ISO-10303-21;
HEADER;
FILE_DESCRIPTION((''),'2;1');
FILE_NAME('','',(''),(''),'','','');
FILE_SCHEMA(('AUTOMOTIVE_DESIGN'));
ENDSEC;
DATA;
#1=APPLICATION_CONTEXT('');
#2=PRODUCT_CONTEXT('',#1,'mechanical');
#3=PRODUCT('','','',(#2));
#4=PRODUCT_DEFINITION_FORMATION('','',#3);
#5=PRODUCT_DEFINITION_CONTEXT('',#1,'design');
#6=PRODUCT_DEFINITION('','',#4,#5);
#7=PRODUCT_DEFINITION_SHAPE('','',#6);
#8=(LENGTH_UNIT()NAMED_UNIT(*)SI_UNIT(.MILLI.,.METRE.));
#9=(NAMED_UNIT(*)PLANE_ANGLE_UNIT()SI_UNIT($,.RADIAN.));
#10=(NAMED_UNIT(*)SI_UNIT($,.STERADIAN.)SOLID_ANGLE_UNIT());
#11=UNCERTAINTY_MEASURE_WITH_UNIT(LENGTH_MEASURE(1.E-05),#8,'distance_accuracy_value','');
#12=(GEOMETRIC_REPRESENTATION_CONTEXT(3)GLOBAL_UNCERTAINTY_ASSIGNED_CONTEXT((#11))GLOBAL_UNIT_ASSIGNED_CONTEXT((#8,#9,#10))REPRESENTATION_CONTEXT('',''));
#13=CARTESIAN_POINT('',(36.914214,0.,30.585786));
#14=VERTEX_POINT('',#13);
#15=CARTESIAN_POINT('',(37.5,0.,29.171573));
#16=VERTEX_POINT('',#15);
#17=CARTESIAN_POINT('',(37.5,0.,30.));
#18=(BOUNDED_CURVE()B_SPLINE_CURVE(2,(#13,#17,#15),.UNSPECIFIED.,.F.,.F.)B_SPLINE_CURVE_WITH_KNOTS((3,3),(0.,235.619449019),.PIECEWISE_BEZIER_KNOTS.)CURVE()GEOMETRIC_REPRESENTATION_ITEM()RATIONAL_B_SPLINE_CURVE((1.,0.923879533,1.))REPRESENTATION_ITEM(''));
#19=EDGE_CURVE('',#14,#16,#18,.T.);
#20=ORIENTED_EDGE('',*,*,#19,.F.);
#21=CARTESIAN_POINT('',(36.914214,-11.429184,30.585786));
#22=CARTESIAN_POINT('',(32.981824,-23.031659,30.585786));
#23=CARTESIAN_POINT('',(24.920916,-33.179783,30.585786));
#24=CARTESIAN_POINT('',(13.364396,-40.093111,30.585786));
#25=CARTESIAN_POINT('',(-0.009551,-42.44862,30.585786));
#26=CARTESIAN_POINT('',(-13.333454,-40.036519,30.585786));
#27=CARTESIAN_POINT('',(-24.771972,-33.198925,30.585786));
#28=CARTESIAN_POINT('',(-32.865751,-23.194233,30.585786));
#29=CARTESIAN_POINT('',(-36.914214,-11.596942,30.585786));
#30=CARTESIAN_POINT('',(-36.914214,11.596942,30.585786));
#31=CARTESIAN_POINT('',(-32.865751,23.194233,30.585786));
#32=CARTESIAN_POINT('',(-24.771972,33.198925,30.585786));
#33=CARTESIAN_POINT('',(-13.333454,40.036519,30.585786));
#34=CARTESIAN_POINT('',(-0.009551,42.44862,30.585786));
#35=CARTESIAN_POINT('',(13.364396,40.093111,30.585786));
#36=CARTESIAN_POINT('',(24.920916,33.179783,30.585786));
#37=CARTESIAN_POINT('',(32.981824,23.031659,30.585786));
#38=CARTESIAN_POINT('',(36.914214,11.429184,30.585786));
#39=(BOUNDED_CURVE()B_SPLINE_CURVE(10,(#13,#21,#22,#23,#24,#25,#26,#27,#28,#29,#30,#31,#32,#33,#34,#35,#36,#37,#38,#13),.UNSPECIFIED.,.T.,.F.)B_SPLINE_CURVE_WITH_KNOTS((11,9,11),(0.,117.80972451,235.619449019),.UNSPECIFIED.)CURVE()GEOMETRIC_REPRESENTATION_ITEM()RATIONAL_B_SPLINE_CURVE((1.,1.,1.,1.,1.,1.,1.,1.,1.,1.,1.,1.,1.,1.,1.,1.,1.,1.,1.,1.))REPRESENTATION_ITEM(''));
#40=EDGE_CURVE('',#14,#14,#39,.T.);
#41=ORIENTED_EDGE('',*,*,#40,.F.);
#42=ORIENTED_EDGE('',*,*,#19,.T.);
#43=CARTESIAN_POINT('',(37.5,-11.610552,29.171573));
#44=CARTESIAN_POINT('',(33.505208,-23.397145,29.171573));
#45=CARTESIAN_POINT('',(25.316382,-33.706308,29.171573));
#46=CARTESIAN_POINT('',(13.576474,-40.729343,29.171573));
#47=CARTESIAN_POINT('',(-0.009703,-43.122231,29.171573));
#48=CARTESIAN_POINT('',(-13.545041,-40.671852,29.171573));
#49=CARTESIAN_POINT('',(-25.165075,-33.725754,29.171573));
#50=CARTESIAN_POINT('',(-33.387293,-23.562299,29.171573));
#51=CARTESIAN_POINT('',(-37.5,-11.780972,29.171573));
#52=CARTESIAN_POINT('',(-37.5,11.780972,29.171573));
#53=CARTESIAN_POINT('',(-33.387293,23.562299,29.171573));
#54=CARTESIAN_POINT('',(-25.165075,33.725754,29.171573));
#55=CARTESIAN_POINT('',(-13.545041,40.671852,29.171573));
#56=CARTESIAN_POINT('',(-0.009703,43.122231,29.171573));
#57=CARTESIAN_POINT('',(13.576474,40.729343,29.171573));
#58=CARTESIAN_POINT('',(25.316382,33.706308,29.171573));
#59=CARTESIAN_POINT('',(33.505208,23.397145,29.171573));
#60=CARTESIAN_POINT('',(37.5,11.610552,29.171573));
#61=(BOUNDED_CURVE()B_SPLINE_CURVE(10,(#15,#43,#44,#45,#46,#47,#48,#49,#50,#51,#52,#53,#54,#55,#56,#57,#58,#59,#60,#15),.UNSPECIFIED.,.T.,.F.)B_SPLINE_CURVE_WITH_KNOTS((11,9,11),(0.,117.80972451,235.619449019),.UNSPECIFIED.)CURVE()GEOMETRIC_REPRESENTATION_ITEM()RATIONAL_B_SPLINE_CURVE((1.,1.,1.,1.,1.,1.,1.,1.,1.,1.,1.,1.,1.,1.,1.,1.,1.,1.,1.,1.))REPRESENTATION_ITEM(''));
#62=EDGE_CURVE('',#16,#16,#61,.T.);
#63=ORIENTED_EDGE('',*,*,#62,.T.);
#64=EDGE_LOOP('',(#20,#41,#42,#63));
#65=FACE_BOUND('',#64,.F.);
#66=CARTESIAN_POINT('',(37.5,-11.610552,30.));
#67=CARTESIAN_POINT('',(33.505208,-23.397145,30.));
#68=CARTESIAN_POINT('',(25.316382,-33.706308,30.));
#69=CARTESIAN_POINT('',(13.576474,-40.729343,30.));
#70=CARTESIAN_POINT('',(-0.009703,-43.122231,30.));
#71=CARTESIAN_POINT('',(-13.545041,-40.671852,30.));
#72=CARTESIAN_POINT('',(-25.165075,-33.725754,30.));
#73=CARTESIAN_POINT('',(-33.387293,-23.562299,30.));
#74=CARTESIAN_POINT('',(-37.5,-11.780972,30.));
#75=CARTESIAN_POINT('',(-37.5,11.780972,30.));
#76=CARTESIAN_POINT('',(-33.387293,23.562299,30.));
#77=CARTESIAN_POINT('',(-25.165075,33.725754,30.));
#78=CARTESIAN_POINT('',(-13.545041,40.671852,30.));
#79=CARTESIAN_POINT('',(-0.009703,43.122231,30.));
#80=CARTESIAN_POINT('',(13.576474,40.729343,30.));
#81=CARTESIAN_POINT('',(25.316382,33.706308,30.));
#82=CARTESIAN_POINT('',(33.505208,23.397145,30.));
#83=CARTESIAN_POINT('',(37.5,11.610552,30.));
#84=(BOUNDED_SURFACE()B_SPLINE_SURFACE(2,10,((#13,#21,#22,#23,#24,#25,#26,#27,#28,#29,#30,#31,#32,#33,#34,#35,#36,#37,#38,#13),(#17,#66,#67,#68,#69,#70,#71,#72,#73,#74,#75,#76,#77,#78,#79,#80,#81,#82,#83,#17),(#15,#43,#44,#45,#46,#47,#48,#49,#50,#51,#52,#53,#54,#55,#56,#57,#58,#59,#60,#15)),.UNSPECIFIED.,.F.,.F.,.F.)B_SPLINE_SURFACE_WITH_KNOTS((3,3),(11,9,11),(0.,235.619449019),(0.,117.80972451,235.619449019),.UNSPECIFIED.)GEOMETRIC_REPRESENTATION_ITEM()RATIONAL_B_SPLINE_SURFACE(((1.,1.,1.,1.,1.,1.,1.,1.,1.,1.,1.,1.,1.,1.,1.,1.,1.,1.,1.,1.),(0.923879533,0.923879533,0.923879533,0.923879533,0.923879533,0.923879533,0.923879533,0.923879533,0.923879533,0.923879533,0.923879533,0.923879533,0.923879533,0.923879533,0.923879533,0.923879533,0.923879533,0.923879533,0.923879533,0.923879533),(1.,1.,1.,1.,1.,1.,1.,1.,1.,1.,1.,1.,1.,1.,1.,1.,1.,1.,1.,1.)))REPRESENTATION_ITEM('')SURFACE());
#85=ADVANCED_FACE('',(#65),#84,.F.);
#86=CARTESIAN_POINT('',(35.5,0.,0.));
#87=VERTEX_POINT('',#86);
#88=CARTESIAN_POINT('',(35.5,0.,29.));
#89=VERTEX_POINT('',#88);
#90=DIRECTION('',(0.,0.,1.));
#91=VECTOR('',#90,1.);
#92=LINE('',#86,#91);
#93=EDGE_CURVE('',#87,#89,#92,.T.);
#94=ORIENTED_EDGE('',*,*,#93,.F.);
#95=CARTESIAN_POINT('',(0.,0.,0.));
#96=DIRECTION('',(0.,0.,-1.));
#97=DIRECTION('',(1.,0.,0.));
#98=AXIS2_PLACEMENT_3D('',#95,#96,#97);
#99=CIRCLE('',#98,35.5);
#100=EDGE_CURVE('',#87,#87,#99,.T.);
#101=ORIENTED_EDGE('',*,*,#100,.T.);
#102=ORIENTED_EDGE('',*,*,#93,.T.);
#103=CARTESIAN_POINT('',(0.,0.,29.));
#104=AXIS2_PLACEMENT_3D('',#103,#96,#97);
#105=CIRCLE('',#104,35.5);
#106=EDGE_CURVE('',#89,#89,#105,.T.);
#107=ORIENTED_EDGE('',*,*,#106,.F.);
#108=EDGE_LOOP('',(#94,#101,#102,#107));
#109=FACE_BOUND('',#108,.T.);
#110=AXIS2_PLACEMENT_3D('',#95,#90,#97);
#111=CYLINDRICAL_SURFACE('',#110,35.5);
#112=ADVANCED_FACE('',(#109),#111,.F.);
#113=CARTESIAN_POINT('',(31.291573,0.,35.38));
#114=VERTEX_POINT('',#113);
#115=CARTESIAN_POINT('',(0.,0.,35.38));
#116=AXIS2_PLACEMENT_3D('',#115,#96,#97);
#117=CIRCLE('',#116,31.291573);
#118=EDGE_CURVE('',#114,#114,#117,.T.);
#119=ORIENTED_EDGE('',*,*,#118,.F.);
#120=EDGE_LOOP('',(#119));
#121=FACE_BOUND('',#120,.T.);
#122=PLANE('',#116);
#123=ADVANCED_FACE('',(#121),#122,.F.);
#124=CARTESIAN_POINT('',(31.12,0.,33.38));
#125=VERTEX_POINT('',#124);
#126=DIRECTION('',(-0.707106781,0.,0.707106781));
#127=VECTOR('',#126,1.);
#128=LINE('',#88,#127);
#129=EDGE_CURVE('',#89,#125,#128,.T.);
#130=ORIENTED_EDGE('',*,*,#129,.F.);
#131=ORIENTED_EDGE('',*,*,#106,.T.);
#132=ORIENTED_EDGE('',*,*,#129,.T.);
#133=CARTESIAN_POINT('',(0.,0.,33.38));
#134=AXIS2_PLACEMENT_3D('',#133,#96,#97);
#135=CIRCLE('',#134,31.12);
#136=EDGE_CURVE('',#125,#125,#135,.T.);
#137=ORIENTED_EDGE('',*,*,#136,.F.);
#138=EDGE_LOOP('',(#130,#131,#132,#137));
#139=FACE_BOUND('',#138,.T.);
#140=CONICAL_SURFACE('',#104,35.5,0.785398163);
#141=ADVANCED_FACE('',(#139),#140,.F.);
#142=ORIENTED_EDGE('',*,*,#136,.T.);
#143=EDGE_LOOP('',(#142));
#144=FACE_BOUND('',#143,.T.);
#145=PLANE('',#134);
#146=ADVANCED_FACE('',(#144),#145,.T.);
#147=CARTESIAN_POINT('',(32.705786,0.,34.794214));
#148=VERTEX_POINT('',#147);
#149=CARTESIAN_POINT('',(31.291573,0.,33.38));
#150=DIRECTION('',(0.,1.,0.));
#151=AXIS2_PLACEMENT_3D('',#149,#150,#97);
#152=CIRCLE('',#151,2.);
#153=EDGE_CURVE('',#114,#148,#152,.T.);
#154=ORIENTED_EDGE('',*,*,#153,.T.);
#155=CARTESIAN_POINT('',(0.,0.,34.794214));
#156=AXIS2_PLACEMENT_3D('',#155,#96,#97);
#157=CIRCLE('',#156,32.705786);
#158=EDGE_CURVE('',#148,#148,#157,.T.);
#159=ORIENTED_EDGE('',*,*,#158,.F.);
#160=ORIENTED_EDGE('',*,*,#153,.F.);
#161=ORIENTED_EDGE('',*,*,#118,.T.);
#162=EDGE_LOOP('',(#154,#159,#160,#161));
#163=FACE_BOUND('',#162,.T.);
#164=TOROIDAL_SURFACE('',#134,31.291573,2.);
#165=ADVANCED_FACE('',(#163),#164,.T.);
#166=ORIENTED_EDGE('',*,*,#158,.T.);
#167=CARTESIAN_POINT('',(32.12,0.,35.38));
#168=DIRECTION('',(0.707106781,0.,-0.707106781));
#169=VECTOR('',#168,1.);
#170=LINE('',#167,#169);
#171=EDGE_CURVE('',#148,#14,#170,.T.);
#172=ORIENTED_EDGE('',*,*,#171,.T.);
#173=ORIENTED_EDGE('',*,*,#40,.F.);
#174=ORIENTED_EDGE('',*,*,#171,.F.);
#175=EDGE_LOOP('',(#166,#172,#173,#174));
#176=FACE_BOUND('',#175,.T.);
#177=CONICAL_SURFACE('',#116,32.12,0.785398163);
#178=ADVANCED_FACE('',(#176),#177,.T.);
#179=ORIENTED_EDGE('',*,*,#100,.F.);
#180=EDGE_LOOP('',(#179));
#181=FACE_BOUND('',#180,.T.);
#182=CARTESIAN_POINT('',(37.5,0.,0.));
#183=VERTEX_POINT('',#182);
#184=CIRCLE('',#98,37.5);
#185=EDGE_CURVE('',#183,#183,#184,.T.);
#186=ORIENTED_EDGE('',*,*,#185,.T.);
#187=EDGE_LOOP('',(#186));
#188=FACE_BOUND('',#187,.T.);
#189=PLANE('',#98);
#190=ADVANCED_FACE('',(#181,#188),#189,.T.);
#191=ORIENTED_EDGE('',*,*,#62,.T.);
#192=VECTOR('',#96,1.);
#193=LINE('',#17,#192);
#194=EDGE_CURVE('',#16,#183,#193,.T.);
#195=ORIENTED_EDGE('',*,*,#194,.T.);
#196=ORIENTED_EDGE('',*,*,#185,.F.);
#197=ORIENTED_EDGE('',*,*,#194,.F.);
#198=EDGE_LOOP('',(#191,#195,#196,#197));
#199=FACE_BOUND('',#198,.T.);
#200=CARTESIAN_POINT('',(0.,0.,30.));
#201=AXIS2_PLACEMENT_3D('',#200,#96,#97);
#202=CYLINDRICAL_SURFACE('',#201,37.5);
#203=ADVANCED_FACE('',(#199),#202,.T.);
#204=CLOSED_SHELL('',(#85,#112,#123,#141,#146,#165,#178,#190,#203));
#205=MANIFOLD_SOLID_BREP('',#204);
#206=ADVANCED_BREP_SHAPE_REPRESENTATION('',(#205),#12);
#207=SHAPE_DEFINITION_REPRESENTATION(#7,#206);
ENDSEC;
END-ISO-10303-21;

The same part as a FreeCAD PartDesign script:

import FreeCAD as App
import Part
import Sketcher

V = App.Vector
Q = App.Units.Quantity


def edges_at(feature, points):
    """Names of the edges that pass closest to the given points."""
    edges = feature.Shape.Edges
    near = lambda p: min(range(len(edges)), key=lambda i: edges[i].distToShape(Part.Vertex(*p))[0])
    return sorted({f"Edge{near(p) + 1}" for p in points})

doc = App.newDocument("Part")
params = doc.addObject("Spreadsheet::Sheet", "Params")
for row, (alias, value) in enumerate([
    ("sketch1_width", "2 mm"),
    ("sketch1_height", "30 mm"),
    ("sketch1_height2", "29 mm"),
    ("sketch1_width2", "32.12 mm"),
    ("revolution_angle", "360 deg"),
    ("fillet_radius", "2 mm"),
], start=1):
    params.set(f"A{row}", alias)
    params.set(f"B{row}", "=" + value)
    params.setAlias(f"B{row}", alias)

body = doc.addObject("PartDesign::Body", "Body")

# Sketch on XZ plane
sketch1 = body.newObject("Sketcher::SketchObject", "Sketch")
sketch1.AttachmentSupport = (doc.getObject("XZ_Plane"), [""])
sketch1.MapMode = "FlatFace"
sketch1.addGeometry([
    Part.LineSegment(V(35.5, 0, 0), V(37.5, 0, 0)),  # 0
    Part.LineSegment(V(37.5, 0, 0), V(37.5, 30, 0)),  # 1
    Part.LineSegment(V(37.5, 30, 0), V(32.12, 35.38, 0)),  # 2
    Part.LineSegment(V(32.12, 35.38, 0), V(0, 35.38, 0)),  # 3
    Part.LineSegment(V(0, 35.38, 0), V(0, 33.38, 0)),  # 4
    Part.LineSegment(V(0, 33.38, 0), V(31.12, 33.38, 0)),  # 5
    Part.LineSegment(V(31.12, 33.38, 0), V(35.5, 29, 0)),  # 6
    Part.LineSegment(V(35.5, 29, 0), V(35.5, 0, 0)),  # 7
], False)
sketch1.addConstraint([
    Sketcher.Constraint("Coincident", 0, 2, 1, 1),
    Sketcher.Constraint("Coincident", 1, 2, 2, 1),
    Sketcher.Constraint("Coincident", 2, 2, 3, 1),
    Sketcher.Constraint("Coincident", 3, 2, 4, 1),
    Sketcher.Constraint("Coincident", 4, 2, 5, 1),
    Sketcher.Constraint("Coincident", 5, 2, 6, 1),
    Sketcher.Constraint("Coincident", 6, 2, 7, 1),
    Sketcher.Constraint("Coincident", 7, 2, 0, 1),
    Sketcher.Constraint("Horizontal", 0),
    Sketcher.Constraint("Vertical", 1),
    Sketcher.Constraint("Horizontal", 3),
    Sketcher.Constraint("Vertical", 4),
    Sketcher.Constraint("Horizontal", 5),
    Sketcher.Constraint("Vertical", 7),
    Sketcher.Constraint("PointOnObject", 0, 2, -1),
    Sketcher.Constraint("PointOnObject", 3, 2, -2),
    Sketcher.Constraint("Parallel", 2, 6),
    Sketcher.Constraint("Equal", 0, 4),
    Sketcher.Constraint("DistanceX", -1, 1, 0, 2, 37.5),
    Sketcher.Constraint("DistanceX", 0, 1, 0, 2, 2.0),
    Sketcher.Constraint("DistanceY", 1, 1, 1, 2, 30.0),
    Sketcher.Constraint("DistanceY", 7, 2, 7, 1, 29.0),
    Sketcher.Constraint("Angle", 2, Q("135 deg")),
    Sketcher.Constraint("DistanceX", 3, 2, 3, 1, 32.12),
])
sketch1.setExpression("Constraints[19]", "Params.sketch1_width")
sketch1.setExpression("Constraints[20]", "Params.sketch1_height")
sketch1.setExpression("Constraints[21]", "Params.sketch1_height2")
sketch1.setExpression("Constraints[23]", "Params.sketch1_width2")
revolution = body.newObject("PartDesign::Revolution", "Revolution")
revolution.Profile = sketch1
revolution.ReferenceAxis = (sketch1, ["V_Axis"])
revolution.setExpression("Angle", "Params.revolution_angle")
doc.recompute()

fillet = body.newObject("PartDesign::Fillet", "Fillet")
fillet.Base = (revolution, edges_at(revolution, [(-32.12, 0, 35.38), (-37.5, 0, 30)]))
fillet.setExpression("Radius", "Params.fillet_radius")

doc.recompute()
